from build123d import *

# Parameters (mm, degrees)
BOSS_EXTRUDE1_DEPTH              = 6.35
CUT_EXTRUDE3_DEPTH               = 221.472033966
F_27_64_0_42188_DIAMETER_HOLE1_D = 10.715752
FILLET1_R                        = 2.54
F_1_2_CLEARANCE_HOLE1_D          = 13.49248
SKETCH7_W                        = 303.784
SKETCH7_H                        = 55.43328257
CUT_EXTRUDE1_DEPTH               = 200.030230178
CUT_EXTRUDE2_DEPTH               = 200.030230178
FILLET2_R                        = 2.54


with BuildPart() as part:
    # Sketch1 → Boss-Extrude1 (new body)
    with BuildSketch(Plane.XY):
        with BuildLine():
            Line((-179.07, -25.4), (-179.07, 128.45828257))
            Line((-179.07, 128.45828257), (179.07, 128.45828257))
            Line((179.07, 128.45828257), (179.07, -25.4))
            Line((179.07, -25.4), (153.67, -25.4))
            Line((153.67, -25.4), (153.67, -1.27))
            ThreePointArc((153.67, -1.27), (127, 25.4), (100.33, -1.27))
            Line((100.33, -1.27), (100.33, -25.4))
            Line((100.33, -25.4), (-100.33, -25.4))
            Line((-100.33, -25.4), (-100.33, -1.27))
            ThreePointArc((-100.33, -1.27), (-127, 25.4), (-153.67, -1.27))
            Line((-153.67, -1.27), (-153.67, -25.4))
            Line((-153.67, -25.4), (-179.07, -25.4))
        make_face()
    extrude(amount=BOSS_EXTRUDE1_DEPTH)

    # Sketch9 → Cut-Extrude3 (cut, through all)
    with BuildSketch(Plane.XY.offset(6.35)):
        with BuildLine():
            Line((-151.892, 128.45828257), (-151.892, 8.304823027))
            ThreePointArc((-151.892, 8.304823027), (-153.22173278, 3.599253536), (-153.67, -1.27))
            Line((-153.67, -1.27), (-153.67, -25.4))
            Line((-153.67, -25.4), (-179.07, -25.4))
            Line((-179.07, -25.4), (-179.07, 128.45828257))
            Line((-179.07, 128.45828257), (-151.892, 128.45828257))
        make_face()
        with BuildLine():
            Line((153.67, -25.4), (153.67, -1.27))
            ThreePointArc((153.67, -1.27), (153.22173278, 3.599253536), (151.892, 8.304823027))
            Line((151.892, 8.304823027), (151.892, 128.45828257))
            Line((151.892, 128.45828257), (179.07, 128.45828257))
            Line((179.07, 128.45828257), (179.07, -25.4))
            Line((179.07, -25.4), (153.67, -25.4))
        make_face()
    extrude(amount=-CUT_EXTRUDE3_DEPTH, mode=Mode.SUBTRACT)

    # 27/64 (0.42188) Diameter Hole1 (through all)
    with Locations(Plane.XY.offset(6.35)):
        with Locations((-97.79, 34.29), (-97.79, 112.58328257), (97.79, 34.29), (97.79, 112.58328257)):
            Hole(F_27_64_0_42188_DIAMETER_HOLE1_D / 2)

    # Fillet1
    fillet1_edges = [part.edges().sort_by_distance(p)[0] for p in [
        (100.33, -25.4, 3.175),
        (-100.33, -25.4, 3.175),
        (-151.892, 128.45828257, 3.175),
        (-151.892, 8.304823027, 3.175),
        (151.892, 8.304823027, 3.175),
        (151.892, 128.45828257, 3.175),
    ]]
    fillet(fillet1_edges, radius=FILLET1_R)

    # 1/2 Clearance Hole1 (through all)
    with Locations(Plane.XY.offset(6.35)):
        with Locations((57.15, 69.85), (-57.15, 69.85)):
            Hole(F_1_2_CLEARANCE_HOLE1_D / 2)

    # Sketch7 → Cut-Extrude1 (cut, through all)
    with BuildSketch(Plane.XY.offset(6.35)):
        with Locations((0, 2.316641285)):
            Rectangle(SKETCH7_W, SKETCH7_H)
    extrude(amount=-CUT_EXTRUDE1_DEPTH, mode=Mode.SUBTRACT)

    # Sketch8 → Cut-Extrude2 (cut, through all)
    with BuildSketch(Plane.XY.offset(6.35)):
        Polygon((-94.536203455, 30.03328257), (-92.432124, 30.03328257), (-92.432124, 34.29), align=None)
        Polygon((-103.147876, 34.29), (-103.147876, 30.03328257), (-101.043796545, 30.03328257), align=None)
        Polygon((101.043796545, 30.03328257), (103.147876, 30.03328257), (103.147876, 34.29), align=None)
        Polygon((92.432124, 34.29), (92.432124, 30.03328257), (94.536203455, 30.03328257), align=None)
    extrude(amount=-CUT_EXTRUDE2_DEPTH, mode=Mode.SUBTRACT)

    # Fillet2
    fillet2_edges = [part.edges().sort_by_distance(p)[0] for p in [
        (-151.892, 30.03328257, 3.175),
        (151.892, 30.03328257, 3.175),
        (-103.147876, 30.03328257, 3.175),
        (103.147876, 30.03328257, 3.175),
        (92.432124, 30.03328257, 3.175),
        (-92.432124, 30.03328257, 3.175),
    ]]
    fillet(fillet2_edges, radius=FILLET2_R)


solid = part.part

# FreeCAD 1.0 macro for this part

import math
import FreeCAD as App
import Part
import Sketcher
Q = App.Units.Quantity


def edges_at(feature, points):
    """Names of the edges that pass closest to the given points."""
    edges = feature.Shape.Edges
    near = lambda p: min(range(len(edges)), key=lambda i: edges[i].distToShape(Part.Vertex(*p))[0])
    return sorted({f"Edge{near(p) + 1}" for p in points})


def add_polygon(sketch, points):
    """Adds a closed chain of lines whose ends are joined by coincident constraints."""
    first, n = sketch.GeometryCount, len(points)
    for a, b in zip(points, points[1:] + points[:1]):
        sketch.addGeometry(Part.LineSegment(App.Vector(*a, 0), App.Vector(*b, 0)), False)
    for i in range(n):
        sketch.addConstraint(Sketcher.Constraint("Coincident", first + i, 2, first + (i + 1) % n, 1))

doc = App.newDocument("Part")
body = doc.addObject("PartDesign::Body", "Body")

# Sketch on XY plane
sketch1 = doc.addObject("Sketcher::SketchObject", "Sketch")
body.addObject(sketch1)
sketch1.AttachmentSupport = (doc.XY_Plane, [""])
sketch1.MapMode = "FlatFace"
sketch1.addGeometry([
    Part.LineSegment(App.Vector(-179, 128, 0), App.Vector(-179, -25, 0)),  # 0
    Part.LineSegment(App.Vector(-179, -25, 0), App.Vector(-154, -25, 0)),  # 1
    Part.LineSegment(App.Vector(-154, -25, 0), App.Vector(-154, -1, 0)),  # 2
    Part.ArcOfCircle(Part.Circle(App.Vector(-127, -1, 0), App.Vector(0, 0, 1), 27), math.radians(0), math.radians(180)),  # 3
    Part.LineSegment(App.Vector(-100, -1, 0), App.Vector(-100, -25, 0)),  # 4
    Part.LineSegment(App.Vector(-100, -25, 0), App.Vector(100, -25, 0)),  # 5
    Part.LineSegment(App.Vector(100, -25, 0), App.Vector(100, -1, 0)),  # 6
    Part.ArcOfCircle(Part.Circle(App.Vector(127, -1, 0), App.Vector(0, 0, 1), 27), math.radians(0), math.radians(180)),  # 7
    Part.LineSegment(App.Vector(154, -1, 0), App.Vector(154, -25, 0)),  # 8
    Part.LineSegment(App.Vector(154, -25, 0), App.Vector(179, -25, 0)),  # 9
    Part.LineSegment(App.Vector(179, -25, 0), App.Vector(179, 128, 0)),  # 10
    Part.LineSegment(App.Vector(179, 128, 0), App.Vector(-179, 128, 0)),  # 11
], False)
sketch1.addConstraint([
    Sketcher.Constraint("Coincident", 0, 2, 1, 1),
    Sketcher.Constraint("Coincident", 1, 2, 2, 1),
    Sketcher.Constraint("Tangent", 2, 2, 3, 2),
    Sketcher.Constraint("Tangent", 3, 1, 4, 1),
    Sketcher.Constraint("Coincident", 4, 2, 5, 1),
    Sketcher.Constraint("Coincident", 5, 2, 6, 1),
    Sketcher.Constraint("Tangent", 6, 2, 7, 2),
    Sketcher.Constraint("Tangent", 7, 1, 8, 1),
    Sketcher.Constraint("Coincident", 8, 2, 9, 1),
    Sketcher.Constraint("Coincident", 9, 2, 10, 1),
    Sketcher.Constraint("Coincident", 10, 2, 11, 1),
    Sketcher.Constraint("Coincident", 11, 2, 0, 1),
    Sketcher.Constraint("Vertical", 0),
    Sketcher.Constraint("Horizontal", 1),
    Sketcher.Constraint("Vertical", 2),
    Sketcher.Constraint("Vertical", 4),
    Sketcher.Constraint("Horizontal", 5),
    Sketcher.Constraint("Vertical", 6),
    Sketcher.Constraint("Vertical", 8),
    Sketcher.Constraint("Horizontal", 9),
    Sketcher.Constraint("Vertical", 10),
    Sketcher.Constraint("Horizontal", 11),
    Sketcher.Constraint("Equal", 3, 7),
    Sketcher.Constraint("Symmetric", 3, 3, 7, 3, -2),
    Sketcher.Constraint("Symmetric", 0, 2, 9, 2, -2),
    Sketcher.Constraint("Horizontal", 1, 2, 4, 2),
    Sketcher.Constraint("DistanceX", 1, 1, 1, 2, Q("1 in")),
    Sketcher.Constraint("Radius", 3, Q("1.05 in")),
    Sketcher.Constraint("DistanceX", 5, 1, 5, 2, Q("7.9 in")),
    Sketcher.Constraint("DistanceY", 0, 2, -1, 1, Q("1 in")),
    Sketcher.Constraint("DistanceY", 2, 1, 2, 2, Q("0.95 in")),
    Sketcher.Constraint("DistanceY", 0, 2, 0, 1, Q("153.858283 mm")),
])
pad1 = doc.addObject("PartDesign::Pad", "Pad")
body.addObject(pad1)
pad1.Profile = sketch1
pad1.Length = Q("0.25 in")

# Sketch on XY plane
sketch2 = doc.addObject("Sketcher::SketchObject", "Sketch001")
body.addObject(sketch2)
sketch2.AttachmentSupport = (doc.XY_Plane, [""])
sketch2.MapMode = "FlatFace"
sketch2.AttachmentOffset = App.Placement(App.Vector(0, 0, 0.25 * 25.4), App.Rotation())
sketch2.addGeometry([
    Part.LineSegment(App.Vector(-152, 8, 0), App.Vector(-152, 128, 0)),  # 0
    Part.LineSegment(App.Vector(-152, 128, 0), App.Vector(-179, 128, 0)),  # 1
    Part.LineSegment(App.Vector(-179, 128, 0), App.Vector(-179, -25, 0)),  # 2
    Part.LineSegment(App.Vector(-179, -25, 0), App.Vector(-154, -25, 0)),  # 3
    Part.LineSegment(App.Vector(-154, -25, 0), App.Vector(-154, -1, 0)),  # 4
    Part.ArcOfCircle(Part.Circle(App.Vector(-127, -1, 0), App.Vector(0, 0, 1), 27), math.radians(159), math.radians(180)),  # 5
    Part.LineSegment(App.Vector(154, -1, 0), App.Vector(154, -25, 0)),  # 6
    Part.LineSegment(App.Vector(154, -25, 0), App.Vector(179, -25, 0)),  # 7
    Part.LineSegment(App.Vector(179, -25, 0), App.Vector(179, 128, 0)),  # 8
    Part.LineSegment(App.Vector(179, 128, 0), App.Vector(152, 128, 0)),  # 9
    Part.LineSegment(App.Vector(152, 128, 0), App.Vector(152, 8, 0)),  # 10
    Part.ArcOfCircle(Part.Circle(App.Vector(127, -1, 0), App.Vector(0, 0, 1), 27), math.radians(0), math.radians(21)),  # 11
], False)
sketch2.addConstraint([
    Sketcher.Constraint("Coincident", 0, 2, 1, 1),
    Sketcher.Constraint("Coincident", 1, 2, 2, 1),
    Sketcher.Constraint("Coincident", 2, 2, 3, 1),
    Sketcher.Constraint("Coincident", 3, 2, 4, 1),
    Sketcher.Constraint("Tangent", 4, 2, 5, 2),
    Sketcher.Constraint("Coincident", 5, 1, 0, 1),
    Sketcher.Constraint("Coincident", 6, 2, 7, 1),
    Sketcher.Constraint("Coincident", 7, 2, 8, 1),
    Sketcher.Constraint("Coincident", 8, 2, 9, 1),
    Sketcher.Constraint("Coincident", 9, 2, 10, 1),
    Sketcher.Constraint("Coincident", 10, 2, 11, 2),
    Sketcher.Constraint("Tangent", 11, 1, 6, 1),
    Sketcher.Constraint("Vertical", 0),
    Sketcher.Constraint("Horizontal", 1),
    Sketcher.Constraint("Vertical", 2),
    Sketcher.Constraint("Horizontal", 3),
    Sketcher.Constraint("Vertical", 4),
    Sketcher.Constraint("Vertical", 6),
    Sketcher.Constraint("Horizontal", 7),
    Sketcher.Constraint("Vertical", 8),
    Sketcher.Constraint("Horizontal", 9),
    Sketcher.Constraint("Vertical", 10),
    Sketcher.Constraint("Equal", 5, 11),
    Sketcher.Constraint("Symmetric", 5, 3, 11, 3, -2),
    Sketcher.Constraint("Symmetric", 2, 2, 7, 2, -2),
    Sketcher.Constraint("Symmetric", 0, 2, 9, 2, -2),
    Sketcher.Constraint("DistanceX", 3, 1, 3, 2, Q("1 in")),
    Sketcher.Constraint("Radius", 5, Q("1.05 in")),
    Sketcher.Constraint("DistanceX", 5, 3, -1, 1, Q("5 in")),
    Sketcher.Constraint("DistanceY", 2, 2, -1, 1, Q("1 in")),
    Sketcher.Constraint("DistanceX", 1, 2, 1, 1, Q("1.07 in")),
    Sketcher.Constraint("DistanceY", 4, 1, 4, 2, Q("0.95 in")),
    Sketcher.Constraint("DistanceY", 0, 1, 0, 2, Q("120.15346 mm")),
])
pocket1 = doc.addObject("PartDesign::Pocket", "Pocket")
body.addObject(pocket1)
pocket1.Profile = sketch2
pocket1.Type = "ThroughAll"

# Sketch on XY plane
sketch3 = doc.addObject("Sketcher::SketchObject", "Sketch002")
body.addObject(sketch3)
sketch3.AttachmentSupport = (doc.XY_Plane, [""])
sketch3.MapMode = "FlatFace"
sketch3.AttachmentOffset = App.Placement(App.Vector(0, 0, 0.25 * 25.4), App.Rotation())
sketch3.addGeometry([
    Part.Circle(App.Vector(-98, 34, 0), App.Vector(0, 0, 1), 5),
    Part.Circle(App.Vector(-98, 113, 0), App.Vector(0, 0, 1), 5),
    Part.Circle(App.Vector(98, 34, 0), App.Vector(0, 0, 1), 5),
    Part.Circle(App.Vector(98, 113, 0), App.Vector(0, 0, 1), 5),
], False)
sketch3.addConstraint([
    Sketcher.Constraint("Equal", 0, 1),
    Sketcher.Constraint("Equal", 1, 2),
    Sketcher.Constraint("Equal", 2, 3),
    Sketcher.Constraint("Symmetric", 0, 3, 2, 3, -2),
    Sketcher.Constraint("Symmetric", 1, 3, 3, 3, -2),
    Sketcher.Constraint("Vertical", 0, 3, 1, 3),
    Sketcher.Constraint("DistanceX", 0, 3, 2, 3, Q("7.7 in")),
    Sketcher.Constraint("DistanceY", -1, 1, 0, 3, Q("1.35 in")),
    Sketcher.Constraint("Diameter", 0, Q("10.715752 mm")),
    Sketcher.Constraint("DistanceY", -1, 1, 1, 3, Q("112.583283 mm")),
])
doc.recompute()
hole = doc.addObject("PartDesign::Hole", "Hole")
body.addObject(hole)
hole.Profile = sketch3
hole.ThreadType = "None"
hole.Diameter = 10.715752
hole.DepthType = "ThroughAll"
doc.recompute()

fillet = doc.addObject("PartDesign::Fillet", "Fillet")
body.addObject(fillet)
fillet.Base = (hole, edges_at(hole, [
    (100.33, -25.4, 3.175),
    (-100.33, -25.4, 3.175),
    (-151.892, 128.458, 3.175),
    (-151.892, 8.305, 3.175),
    (151.892, 8.305, 3.175),
    (151.892, 128.458, 3.175),
]))
fillet.Radius = Q("0.1 in")

# Sketch on XY plane
sketch4 = doc.addObject("Sketcher::SketchObject", "Sketch003")
body.addObject(sketch4)
sketch4.AttachmentSupport = (doc.XY_Plane, [""])
sketch4.MapMode = "FlatFace"
sketch4.AttachmentOffset = App.Placement(App.Vector(0, 0, 0.25 * 25.4), App.Rotation())
sketch4.addGeometry([
    Part.Circle(App.Vector(57, 70, 0), App.Vector(0, 0, 1), 7),
    Part.Circle(App.Vector(-57, 70, 0), App.Vector(0, 0, 1), 7),
], False)
sketch4.addConstraint([
    Sketcher.Constraint("Equal", 0, 1),
    Sketcher.Constraint("Symmetric", 0, 3, 1, 3, -2),
    Sketcher.Constraint("Diameter", 0, Q("0.5312 in")),
    Sketcher.Constraint("DistanceX", 1, 3, 0, 3, Q("4.5 in")),
    Sketcher.Constraint("DistanceY", -1, 1, 0, 3, Q("2.75 in")),
])
doc.recompute()
hole2 = doc.addObject("PartDesign::Hole", "Hole001")
body.addObject(hole2)
hole2.Profile = sketch4
hole2.ThreadType = "None"
hole2.Diameter = Q("0.5312 in")
hole2.DepthType = "ThroughAll"

# Sketch on XY plane
sketch5 = doc.addObject("Sketcher::SketchObject", "Sketch004")
body.addObject(sketch5)
sketch5.AttachmentSupport = (doc.XY_Plane, [""])
sketch5.MapMode = "FlatFace"
sketch5.AttachmentOffset = App.Placement(App.Vector(0, 0, 0.25 * 25.4), App.Rotation())
add_polygon(sketch5, [(-152, 30), (-152, -25), (152, -25), (152, 30)])  # lines 0-3
sketch5.addConstraint([
    Sketcher.Constraint("Vertical", 0),
    Sketcher.Constraint("Horizontal", 1),
    Sketcher.Constraint("Vertical", 2),
    Sketcher.Constraint("Horizontal", 3),
    Sketcher.Constraint("DistanceY", 0, 2, -1, 1, Q("1 in")),
    Sketcher.Constraint("DistanceX", 1, 1, 1, 2, Q("11.96 in")),
    Sketcher.Constraint("DistanceX", 0, 2, -1, 1, Q("5.98 in")),
    Sketcher.Constraint("DistanceY", 0, 2, 0, 1, Q("55.433283 mm")),
])
pocket2 = doc.addObject("PartDesign::Pocket", "Pocket001")
body.addObject(pocket2)
pocket2.Profile = sketch5
pocket2.Type = "ThroughAll"

# Sketch on XY plane
sketch6 = doc.addObject("Sketcher::SketchObject", "Sketch005")
body.addObject(sketch6)
sketch6.AttachmentSupport = (doc.XY_Plane, [""])
sketch6.MapMode = "FlatFace"
sketch6.AttachmentOffset = App.Placement(App.Vector(0, 0, 0.25 * 25.4), App.Rotation())
add_polygon(sketch6, [(-94.5, 30), (-92.4, 30), (-92.4, 34.3)])  # lines 0-2
add_polygon(sketch6, [(-103.1, 34.3), (-103.1, 30), (-101, 30)])  # lines 3-5
add_polygon(sketch6, [(101, 30), (103.1, 30), (103.1, 34.3)])  # lines 6-8
add_polygon(sketch6, [(92.4, 34.3), (92.4, 30), (94.5, 30)])  # lines 9-11
sketch6.addConstraint([
    Sketcher.Constraint("Horizontal", 0),
    Sketcher.Constraint("Vertical", 1),
    Sketcher.Constraint("Vertical", 3),
    Sketcher.Constraint("Horizontal", 4),
    Sketcher.Constraint("Horizontal", 6),
    Sketcher.Constraint("Vertical", 7),
    Sketcher.Constraint("Vertical", 9),
    Sketcher.Constraint("Horizontal", 10),
    Sketcher.Constraint("Symmetric", 3, 2, 6, 2, -2),
    Sketcher.Constraint("Symmetric", 0, 2, 9, 2, -2),
    Sketcher.Constraint("Parallel", 2, 8),
    Sketcher.Constraint("Parallel", 5, 11),
    Sketcher.Constraint("Horizontal", 2, 2, 3, 2),
    Sketcher.Constraint("Horizontal", 1, 2, 5, 2),
    Sketcher.Constraint("Horizontal", 5, 2, 7, 2),
    Sketcher.Constraint("Horizontal", 7, 2, 11, 2),
    Sketcher.Constraint("Equal", 0, 4),
    Sketcher.Constraint("DistanceX", 0, 2, 6, 2, Q("7.7 in")),
    Sketcher.Constraint("DistanceY", -1, 1, 1, 2, Q("1.35 in")),
    Sketcher.Constraint("DistanceX", 0, 1, 0, 2, Q("2.104079 mm")),
    Sketcher.Constraint("DistanceY", 1, 1, 1, 2, Q("4.256717 mm")),
    Sketcher.Constraint("DistanceX", 3, 2, 0, 2, Q("10.715752 mm")),
])
pocket3 = doc.addObject("PartDesign::Pocket", "Pocket002")
body.addObject(pocket3)
pocket3.Profile = sketch6
pocket3.Type = "ThroughAll"
doc.recompute()

fillet2 = doc.addObject("PartDesign::Fillet", "Fillet001")
body.addObject(fillet2)
fillet2.Base = (pocket3, edges_at(pocket3, [
    (-151.892, 30.033, 3.175),
    (151.892, 30.033, 3.175),
    (-103.148, 30.033, 3.175),
    (103.148, 30.033, 3.175),
    (92.432, 30.033, 3.175),
    (-92.432, 30.033, 3.175),
]))
fillet2.Radius = Q("0.1 in")

doc.recompute()
